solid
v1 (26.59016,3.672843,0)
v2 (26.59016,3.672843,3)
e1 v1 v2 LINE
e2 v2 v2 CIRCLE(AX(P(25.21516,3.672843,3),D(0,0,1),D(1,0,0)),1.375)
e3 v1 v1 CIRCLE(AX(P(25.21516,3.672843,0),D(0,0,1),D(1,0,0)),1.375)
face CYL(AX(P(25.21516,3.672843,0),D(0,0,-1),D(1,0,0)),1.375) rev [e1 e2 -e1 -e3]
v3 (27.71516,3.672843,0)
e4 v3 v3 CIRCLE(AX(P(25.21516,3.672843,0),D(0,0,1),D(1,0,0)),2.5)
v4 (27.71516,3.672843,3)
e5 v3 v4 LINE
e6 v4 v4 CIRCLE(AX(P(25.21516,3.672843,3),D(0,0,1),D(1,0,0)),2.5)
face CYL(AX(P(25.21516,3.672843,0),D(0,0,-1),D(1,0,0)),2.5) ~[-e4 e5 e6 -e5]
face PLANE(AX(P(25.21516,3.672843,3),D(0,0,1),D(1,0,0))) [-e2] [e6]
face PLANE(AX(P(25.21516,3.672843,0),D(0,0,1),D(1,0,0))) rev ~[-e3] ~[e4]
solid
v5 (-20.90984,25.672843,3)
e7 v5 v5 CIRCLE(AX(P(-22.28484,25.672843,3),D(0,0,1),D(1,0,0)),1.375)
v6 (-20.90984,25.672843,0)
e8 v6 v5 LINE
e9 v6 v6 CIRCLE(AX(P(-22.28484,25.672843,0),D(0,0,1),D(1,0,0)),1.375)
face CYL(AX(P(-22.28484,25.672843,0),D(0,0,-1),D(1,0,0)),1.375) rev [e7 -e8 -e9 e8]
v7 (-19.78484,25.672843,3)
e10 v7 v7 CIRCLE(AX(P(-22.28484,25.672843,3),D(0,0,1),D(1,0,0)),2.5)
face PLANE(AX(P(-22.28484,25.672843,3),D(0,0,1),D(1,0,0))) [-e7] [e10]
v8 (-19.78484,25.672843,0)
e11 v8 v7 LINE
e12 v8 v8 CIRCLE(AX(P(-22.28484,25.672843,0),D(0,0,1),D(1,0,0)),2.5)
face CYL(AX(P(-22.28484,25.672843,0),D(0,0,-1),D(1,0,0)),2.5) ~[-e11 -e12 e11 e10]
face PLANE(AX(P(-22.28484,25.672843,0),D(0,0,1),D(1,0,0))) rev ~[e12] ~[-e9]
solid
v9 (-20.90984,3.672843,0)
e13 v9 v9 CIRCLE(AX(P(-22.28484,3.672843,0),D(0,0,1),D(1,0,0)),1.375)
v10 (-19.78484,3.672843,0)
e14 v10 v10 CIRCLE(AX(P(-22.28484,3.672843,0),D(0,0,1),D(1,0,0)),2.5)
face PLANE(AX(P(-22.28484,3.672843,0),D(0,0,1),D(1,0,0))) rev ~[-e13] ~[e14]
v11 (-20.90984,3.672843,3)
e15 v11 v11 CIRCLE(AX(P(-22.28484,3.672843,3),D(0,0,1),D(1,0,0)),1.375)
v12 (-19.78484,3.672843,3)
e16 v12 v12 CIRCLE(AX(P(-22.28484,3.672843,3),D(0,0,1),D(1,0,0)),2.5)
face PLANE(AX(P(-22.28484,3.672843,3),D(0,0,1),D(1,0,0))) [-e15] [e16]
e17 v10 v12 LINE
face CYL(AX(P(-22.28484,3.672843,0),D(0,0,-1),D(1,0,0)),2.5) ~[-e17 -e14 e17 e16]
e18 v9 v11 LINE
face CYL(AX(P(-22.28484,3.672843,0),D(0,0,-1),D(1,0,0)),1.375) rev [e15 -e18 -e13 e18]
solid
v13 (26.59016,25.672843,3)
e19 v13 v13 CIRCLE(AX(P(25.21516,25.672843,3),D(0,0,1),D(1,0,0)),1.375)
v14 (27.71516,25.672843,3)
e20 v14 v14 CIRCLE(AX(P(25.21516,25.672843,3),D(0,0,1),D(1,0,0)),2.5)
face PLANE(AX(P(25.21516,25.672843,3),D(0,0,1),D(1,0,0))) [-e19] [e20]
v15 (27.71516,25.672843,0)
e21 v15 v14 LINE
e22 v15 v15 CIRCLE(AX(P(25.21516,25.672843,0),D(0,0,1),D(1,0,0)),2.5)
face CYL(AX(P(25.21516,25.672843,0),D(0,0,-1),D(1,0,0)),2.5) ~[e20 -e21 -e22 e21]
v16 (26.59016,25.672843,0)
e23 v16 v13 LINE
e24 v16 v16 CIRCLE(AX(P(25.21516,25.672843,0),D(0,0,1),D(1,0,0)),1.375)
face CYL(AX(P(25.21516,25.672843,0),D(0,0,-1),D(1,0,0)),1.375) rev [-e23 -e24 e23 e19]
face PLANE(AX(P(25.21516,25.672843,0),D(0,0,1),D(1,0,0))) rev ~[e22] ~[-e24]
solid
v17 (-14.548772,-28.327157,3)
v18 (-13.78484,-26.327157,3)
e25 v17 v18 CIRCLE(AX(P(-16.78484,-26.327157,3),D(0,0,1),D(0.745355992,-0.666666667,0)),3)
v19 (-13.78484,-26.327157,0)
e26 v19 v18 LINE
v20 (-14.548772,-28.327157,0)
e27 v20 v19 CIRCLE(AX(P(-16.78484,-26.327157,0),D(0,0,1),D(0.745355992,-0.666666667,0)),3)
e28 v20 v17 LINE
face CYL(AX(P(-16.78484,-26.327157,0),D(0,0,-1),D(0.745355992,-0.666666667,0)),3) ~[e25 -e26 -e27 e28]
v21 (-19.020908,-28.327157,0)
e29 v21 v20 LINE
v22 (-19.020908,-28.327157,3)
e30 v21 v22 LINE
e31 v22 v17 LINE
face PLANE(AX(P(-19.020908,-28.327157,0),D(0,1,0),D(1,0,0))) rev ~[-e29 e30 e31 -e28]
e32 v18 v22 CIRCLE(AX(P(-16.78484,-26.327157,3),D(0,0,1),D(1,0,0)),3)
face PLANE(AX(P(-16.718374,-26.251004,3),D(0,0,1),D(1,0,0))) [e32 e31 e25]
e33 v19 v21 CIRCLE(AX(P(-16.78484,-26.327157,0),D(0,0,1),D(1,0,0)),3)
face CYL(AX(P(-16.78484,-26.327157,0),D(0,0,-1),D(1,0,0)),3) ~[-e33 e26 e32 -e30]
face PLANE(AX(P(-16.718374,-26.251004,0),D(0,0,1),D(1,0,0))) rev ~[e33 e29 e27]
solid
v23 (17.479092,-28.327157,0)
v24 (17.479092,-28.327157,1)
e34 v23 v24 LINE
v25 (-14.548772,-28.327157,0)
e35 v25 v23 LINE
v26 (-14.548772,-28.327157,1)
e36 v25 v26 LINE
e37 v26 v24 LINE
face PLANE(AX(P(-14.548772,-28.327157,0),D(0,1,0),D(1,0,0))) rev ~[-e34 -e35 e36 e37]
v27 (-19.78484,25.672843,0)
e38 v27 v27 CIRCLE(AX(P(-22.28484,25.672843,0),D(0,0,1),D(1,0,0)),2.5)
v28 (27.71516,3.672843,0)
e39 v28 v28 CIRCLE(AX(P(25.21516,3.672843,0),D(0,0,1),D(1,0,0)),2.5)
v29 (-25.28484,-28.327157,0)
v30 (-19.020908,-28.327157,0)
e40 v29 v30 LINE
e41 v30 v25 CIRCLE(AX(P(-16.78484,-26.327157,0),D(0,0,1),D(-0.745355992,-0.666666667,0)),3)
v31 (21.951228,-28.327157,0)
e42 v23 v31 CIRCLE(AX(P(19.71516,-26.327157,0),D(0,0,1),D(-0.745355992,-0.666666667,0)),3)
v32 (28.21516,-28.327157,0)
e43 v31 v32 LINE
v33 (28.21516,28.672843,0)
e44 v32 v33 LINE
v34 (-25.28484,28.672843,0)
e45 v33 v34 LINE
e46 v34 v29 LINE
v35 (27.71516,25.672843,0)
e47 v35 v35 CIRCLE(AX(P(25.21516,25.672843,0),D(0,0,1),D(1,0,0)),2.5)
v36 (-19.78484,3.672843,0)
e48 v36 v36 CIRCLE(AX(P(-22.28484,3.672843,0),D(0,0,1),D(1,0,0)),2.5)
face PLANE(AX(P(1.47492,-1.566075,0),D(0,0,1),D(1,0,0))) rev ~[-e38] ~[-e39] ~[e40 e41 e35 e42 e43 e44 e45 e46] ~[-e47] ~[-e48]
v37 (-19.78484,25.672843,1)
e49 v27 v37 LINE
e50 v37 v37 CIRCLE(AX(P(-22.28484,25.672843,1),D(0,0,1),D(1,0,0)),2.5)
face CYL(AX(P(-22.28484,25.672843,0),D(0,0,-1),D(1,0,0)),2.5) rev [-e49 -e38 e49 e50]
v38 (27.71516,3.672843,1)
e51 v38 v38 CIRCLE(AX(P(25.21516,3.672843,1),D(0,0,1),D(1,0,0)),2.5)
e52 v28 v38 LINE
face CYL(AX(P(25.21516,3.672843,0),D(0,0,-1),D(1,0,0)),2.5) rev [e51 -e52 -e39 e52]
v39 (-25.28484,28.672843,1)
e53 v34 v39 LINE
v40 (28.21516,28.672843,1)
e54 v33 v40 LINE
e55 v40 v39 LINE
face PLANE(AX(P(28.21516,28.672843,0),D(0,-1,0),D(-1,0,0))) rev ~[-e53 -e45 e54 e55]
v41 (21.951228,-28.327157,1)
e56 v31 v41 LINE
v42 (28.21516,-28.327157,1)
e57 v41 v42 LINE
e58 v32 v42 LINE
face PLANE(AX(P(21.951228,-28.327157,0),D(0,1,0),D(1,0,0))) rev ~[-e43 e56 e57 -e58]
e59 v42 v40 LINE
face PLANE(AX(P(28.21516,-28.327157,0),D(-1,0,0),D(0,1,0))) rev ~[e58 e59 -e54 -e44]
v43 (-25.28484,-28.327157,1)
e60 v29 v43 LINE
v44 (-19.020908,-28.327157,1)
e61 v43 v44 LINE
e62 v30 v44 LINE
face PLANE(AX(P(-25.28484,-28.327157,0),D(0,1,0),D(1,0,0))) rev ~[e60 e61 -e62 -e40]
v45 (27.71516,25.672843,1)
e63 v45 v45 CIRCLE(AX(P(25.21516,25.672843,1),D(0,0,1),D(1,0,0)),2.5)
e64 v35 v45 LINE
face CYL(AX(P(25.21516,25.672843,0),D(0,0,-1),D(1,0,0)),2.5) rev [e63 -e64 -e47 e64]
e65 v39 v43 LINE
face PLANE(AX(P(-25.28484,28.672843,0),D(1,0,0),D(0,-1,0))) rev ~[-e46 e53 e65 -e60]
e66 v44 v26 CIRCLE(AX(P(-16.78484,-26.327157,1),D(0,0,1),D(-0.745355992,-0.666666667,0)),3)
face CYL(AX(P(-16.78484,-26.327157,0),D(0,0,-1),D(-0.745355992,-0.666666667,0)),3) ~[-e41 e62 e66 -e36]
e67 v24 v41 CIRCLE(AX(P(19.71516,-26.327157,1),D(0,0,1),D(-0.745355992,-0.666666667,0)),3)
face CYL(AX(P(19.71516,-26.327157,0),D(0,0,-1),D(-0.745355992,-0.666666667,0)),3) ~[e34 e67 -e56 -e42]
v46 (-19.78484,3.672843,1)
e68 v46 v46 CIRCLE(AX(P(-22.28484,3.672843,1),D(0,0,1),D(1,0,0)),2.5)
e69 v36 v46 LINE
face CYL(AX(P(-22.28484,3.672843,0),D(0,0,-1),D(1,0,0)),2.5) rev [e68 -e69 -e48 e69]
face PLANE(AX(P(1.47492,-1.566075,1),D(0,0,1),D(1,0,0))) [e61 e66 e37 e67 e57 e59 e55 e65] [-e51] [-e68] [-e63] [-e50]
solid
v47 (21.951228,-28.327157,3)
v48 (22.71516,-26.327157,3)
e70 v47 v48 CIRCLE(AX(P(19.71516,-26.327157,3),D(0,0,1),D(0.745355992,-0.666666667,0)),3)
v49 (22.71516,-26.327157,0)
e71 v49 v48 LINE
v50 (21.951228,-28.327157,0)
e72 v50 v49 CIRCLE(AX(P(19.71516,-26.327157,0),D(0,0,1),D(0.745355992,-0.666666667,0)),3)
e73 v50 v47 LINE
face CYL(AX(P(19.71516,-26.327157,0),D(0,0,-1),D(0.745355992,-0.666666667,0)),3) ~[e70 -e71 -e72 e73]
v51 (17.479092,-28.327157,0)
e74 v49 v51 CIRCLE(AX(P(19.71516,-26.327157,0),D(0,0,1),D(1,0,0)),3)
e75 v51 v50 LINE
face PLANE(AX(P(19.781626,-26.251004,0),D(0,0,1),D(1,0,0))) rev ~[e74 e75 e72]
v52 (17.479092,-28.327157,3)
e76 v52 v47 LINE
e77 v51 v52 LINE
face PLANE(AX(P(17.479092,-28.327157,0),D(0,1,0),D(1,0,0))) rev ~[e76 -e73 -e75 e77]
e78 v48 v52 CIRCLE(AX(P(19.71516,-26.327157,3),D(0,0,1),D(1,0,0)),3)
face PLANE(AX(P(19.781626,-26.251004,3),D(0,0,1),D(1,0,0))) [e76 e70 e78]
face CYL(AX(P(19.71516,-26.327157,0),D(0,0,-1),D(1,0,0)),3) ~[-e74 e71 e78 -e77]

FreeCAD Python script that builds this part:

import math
import FreeCAD as App
import Part
import Sketcher
from FreeCAD import Vector

doc = App.newDocument("Part")
body = doc.addObject("PartDesign::Body", "Body")

# Sketch on XY plane
sketch1 = doc.addObject("Sketcher::SketchObject", "Sketch")
body.addObject(sketch1)
sketch1.AttachmentSupport = (doc.XY_Plane, [""])
sketch1.MapMode = "FlatFace"
sketch1.addGeometry([
    Part.Circle(Vector(-22.28484, 25.672843, 0), Vector(0, 0, 1), 2.5),
    Part.Circle(Vector(-22.28484, 25.672843, 0), Vector(0, 0, 1), 1.375),
], False)
sketch1.addConstraint([
    Sketcher.Constraint("Coincident", 1, 3, 0, 3),
    Sketcher.Constraint("Diameter", 0, 5.0),
    Sketcher.Constraint("Diameter", 1, 2.75),
    Sketcher.Constraint("DistanceX", 0, 3, -1, 1, 22.28484),
    Sketcher.Constraint("DistanceY", -1, 1, 0, 3, 25.672843),
])
pad1 = doc.addObject("PartDesign::Pad", "Pad")
body.addObject(pad1)
pad1.Profile = sketch1
pad1.Length = 3
body2 = doc.addObject("PartDesign::Body", "Body001")

# Sketch on XY plane
sketch2 = doc.addObject("Sketcher::SketchObject", "Sketch001")
body2.addObject(sketch2)
sketch2.AttachmentSupport = (doc.getObject("XY_Plane001"), [""])
sketch2.MapMode = "FlatFace"
sketch2.addGeometry([
    Part.Circle(Vector(-22.28484, 3.672843, 0), Vector(0, 0, 1), 2.5),
    Part.Circle(Vector(-22.28484, 3.672843, 0), Vector(0, 0, 1), 1.375),
], False)
sketch2.addConstraint([
    Sketcher.Constraint("Coincident", 1, 3, 0, 3),
    Sketcher.Constraint("Diameter", 0, 5.0),
    Sketcher.Constraint("Diameter", 1, 2.75),
    Sketcher.Constraint("DistanceX", 0, 3, -1, 1, 22.28484),
    Sketcher.Constraint("DistanceY", -1, 1, 0, 3, 3.672843),
])
pad2 = doc.addObject("PartDesign::Pad", "Pad001")
body2.addObject(pad2)
pad2.Profile = sketch2
pad2.Length = 3
body3 = doc.addObject("PartDesign::Body", "Body002")

# Sketch on XY plane
sketch3 = doc.addObject("Sketcher::SketchObject", "Sketch002")
body3.addObject(sketch3)
sketch3.AttachmentSupport = (doc.getObject("XY_Plane002"), [""])
sketch3.MapMode = "FlatFace"
sketch3.addGeometry([
    Part.Circle(Vector(25.21516, 3.672843, 0), Vector(0, 0, 1), 2.5),
    Part.Circle(Vector(25.21516, 3.672843, 0), Vector(0, 0, 1), 1.375),
], False)
sketch3.addConstraint([
    Sketcher.Constraint("Coincident", 1, 3, 0, 3),
    Sketcher.Constraint("Diameter", 0, 5.0),
    Sketcher.Constraint("Diameter", 1, 2.75),
    Sketcher.Constraint("DistanceX", -1, 1, 0, 3, 25.21516),
    Sketcher.Constraint("DistanceY", -1, 1, 0, 3, 3.672843),
])
pad3 = doc.addObject("PartDesign::Pad", "Pad002")
body3.addObject(pad3)
pad3.Profile = sketch3
pad3.Length = 3
body4 = doc.addObject("PartDesign::Body", "Body003")

# Sketch on XY plane
sketch4 = doc.addObject("Sketcher::SketchObject", "Sketch003")
body4.addObject(sketch4)
sketch4.AttachmentSupport = (doc.getObject("XY_Plane003"), [""])
sketch4.MapMode = "FlatFace"
sketch4.addGeometry([
    Part.Circle(Vector(25.21516, 25.672843, 0), Vector(0, 0, 1), 2.5),
    Part.Circle(Vector(25.21516, 25.672843, 0), Vector(0, 0, 1), 1.375),
], False)
sketch4.addConstraint([
    Sketcher.Constraint("Coincident", 1, 3, 0, 3),
    Sketcher.Constraint("Diameter", 0, 5.0),
    Sketcher.Constraint("Diameter", 1, 2.75),
    Sketcher.Constraint("DistanceX", -1, 1, 0, 3, 25.21516),
    Sketcher.Constraint("DistanceY", -1, 1, 0, 3, 25.672843),
])
pad4 = doc.addObject("PartDesign::Pad", "Pad003")
body4.addObject(pad4)
pad4.Profile = sketch4
pad4.Length = 3
body5 = doc.addObject("PartDesign::Body", "Body004")

# Sketch on XY plane
sketch5 = doc.addObject("Sketcher::SketchObject", "Sketch004")
body5.addObject(sketch5)
sketch5.AttachmentSupport = (doc.getObject("XY_Plane004"), [""])
sketch5.MapMode = "FlatFace"
sketch5.addGeometry([
    Part.ArcOfCircle(Part.Circle(Vector(-16.78484, -26.327157, 0), Vector(0, 0, 1), 3), math.radians(0), math.radians(221.810315)),
    Part.LineSegment(Vector(-19.020908, -28.327157, 0), Vector(-14.548772, -28.327157, 0)),
    Part.ArcOfCircle(Part.Circle(Vector(-16.78484, -26.327157, 0), Vector(0, 0, 1), 3), math.radians(-41.810315), math.radians(0)),
], False)
sketch5.addConstraint([
    Sketcher.Constraint("Coincident", 0, 2, 1, 1),
    Sketcher.Constraint("Coincident", 1, 2, 2, 1),
    Sketcher.Constraint("Tangent", 2, 2, 0, 1),
    Sketcher.Constraint("Horizontal", 1),
    Sketcher.Constraint("Equal", 0, 2),
    Sketcher.Constraint("Horizontal", 0, 3, 2, 2),
    Sketcher.Constraint("Radius", 0, 3.0),
    Sketcher.Constraint("DistanceY", 0, 2, 0, 3, 2.0),
    Sketcher.Constraint("DistanceX", 0, 3, -1, 1, 16.78484),
    Sketcher.Constraint("DistanceY", 0, 3, -1, 1, 26.327157),
])
pad5 = doc.addObject("PartDesign::Pad", "Pad004")
body5.addObject(pad5)
pad5.Profile = sketch5
pad5.Length = 3
body6 = doc.addObject("PartDesign::Body", "Body005")

# Sketch on XY plane
sketch6 = doc.addObject("Sketcher::SketchObject", "Sketch005")
body6.addObject(sketch6)
sketch6.AttachmentSupport = (doc.getObject("XY_Plane005"), [""])
sketch6.MapMode = "FlatFace"
sketch6.addGeometry([
    Part.LineSegment(Vector(17.479092, -28.327157, 0), Vector(21.951228, -28.327157, 0)),
    Part.ArcOfCircle(Part.Circle(Vector(19.71516, -26.327157, 0), Vector(0, 0, 1), 3), math.radians(-41.810315), math.radians(0)),
    Part.ArcOfCircle(Part.Circle(Vector(19.71516, -26.327157, 0), Vector(0, 0, 1), 3), math.radians(0), math.radians(221.810315)),
], False)
sketch6.addConstraint([
    Sketcher.Constraint("Coincident", 0, 2, 1, 1),
    Sketcher.Constraint("Tangent", 1, 2, 2, 1),
    Sketcher.Constraint("Coincident", 2, 2, 0, 1),
    Sketcher.Constraint("Horizontal", 0),
    Sketcher.Constraint("Equal", 1, 2),
    Sketcher.Constraint("Horizontal", 2, 3, 1, 2),
    Sketcher.Constraint("Radius", 1, 3.0),
    Sketcher.Constraint("DistanceY", 0, 2, 1, 3, 2.0),
    Sketcher.Constraint("DistanceX", -1, 1, 1, 3, 19.71516),
    Sketcher.Constraint("DistanceY", 1, 3, -1, 1, 26.327157),
])
pad6 = doc.addObject("PartDesign::Pad", "Pad005")
body6.addObject(pad6)
pad6.Profile = sketch6
pad6.Length = 3
body7 = doc.addObject("PartDesign::Body", "Body006")

# Sketch on XY plane
sketch7 = doc.addObject("Sketcher::SketchObject", "Sketch006")
body7.addObject(sketch7)
sketch7.AttachmentSupport = (doc.getObject("XY_Plane006"), [""])
sketch7.MapMode = "FlatFace"
sketch7.addGeometry([
    Part.LineSegment(Vector(28.21516, 28.672843, 0), Vector(-25.28484, 28.672843, 0)),  # 0
    Part.LineSegment(Vector(-25.28484, 28.672843, 0), Vector(-25.28484, -28.327157, 0)),  # 1
    Part.LineSegment(Vector(-25.28484, -28.327157, 0), Vector(-19.020908, -28.327157, 0)),  # 2
    Part.ArcOfCircle(Part.Circle(Vector(-16.78484, -26.327157, 0), Vector(0, 0, 1), 3), math.radians(-138.189685), math.radians(-41.810315)),  # 3
    Part.LineSegment(Vector(-14.548772, -28.327157, 0), Vector(17.479092, -28.327157, 0)),  # 4
    Part.ArcOfCircle(Part.Circle(Vector(19.71516, -26.327157, 0), Vector(0, 0, 1), 3), math.radians(-138.189685), math.radians(-41.810315)),  # 5
    Part.LineSegment(Vector(21.951228, -28.327157, 0), Vector(28.21516, -28.327157, 0)),  # 6
    Part.LineSegment(Vector(28.21516, -28.327157, 0), Vector(28.21516, 28.672843, 0)),  # 7
    Part.Circle(Vector(-22.28484, 3.672843, 0), Vector(0, 0, 1), 2.5),  # 8
    Part.Circle(Vector(25.21516, 3.672843, 0), Vector(0, 0, 1), 2.5),  # 9
    Part.Circle(Vector(-22.28484, 25.672843, 0), Vector(0, 0, 1), 2.5),  # 10
    Part.Circle(Vector(25.21516, 25.672843, 0), Vector(0, 0, 1), 2.5),  # 11
], False)
sketch7.addConstraint([
    Sketcher.Constraint("Coincident", 0, 2, 1, 1),
    Sketcher.Constraint("Coincident", 1, 2, 2, 1),
    Sketcher.Constraint("Coincident", 2, 2, 3, 1),
    Sketcher.Constraint("Coincident", 3, 2, 4, 1),
    Sketcher.Constraint("Coincident", 4, 2, 5, 1),
    Sketcher.Constraint("Coincident", 5, 2, 6, 1),
    Sketcher.Constraint("Coincident", 6, 2, 7, 1),
    Sketcher.Constraint("Coincident", 7, 2, 0, 1),
    Sketcher.Constraint("Horizontal", 0),
    Sketcher.Constraint("Vertical", 1),
    Sketcher.Constraint("Horizontal", 2),
    Sketcher.Constraint("Horizontal", 4),
    Sketcher.Constraint("Horizontal", 6),
    Sketcher.Constraint("Vertical", 7),
    Sketcher.Constraint("Equal", 3, 5),
    Sketcher.Constraint("Equal", 8, 9),
    Sketcher.Constraint("Equal", 9, 10),
    Sketcher.Constraint("Equal", 10, 11),
    Sketcher.Constraint("Horizontal", 3, 3, 5, 3),
    Sketcher.Constraint("Horizontal", 8, 3, 9, 3),
    Sketcher.Constraint("Horizontal", 10, 3, 11, 3),
    Sketcher.Constraint("Horizontal", 2, 2, 3, 2),
    Sketcher.Constraint("Horizontal", 4, 2, 5, 2),
    Sketcher.Constraint("Vertical", 8, 3, 10, 3),
    Sketcher.Constraint("Vertical", 9, 3, 11, 3),
    Sketcher.Constraint("Equal", 2, 6),
    Sketcher.Constraint("Diameter", 8, 5.0),
    Sketcher.Constraint("Radius", 3, 3.0),
    Sketcher.Constraint("DistanceY", 1, 2, 1, 1, 57.0),
    Sketcher.Constraint("DistanceX", 0, 2, 0, 1, 53.5),
    Sketcher.Constraint("DistanceY", 3, 3, 8, 3, 30.0),
    Sketcher.Constraint("DistanceX", 8, 3, 5, 3, 42.0),
    Sketcher.Constraint("DistanceX", 3, 3, 9, 3, 42.0),
    Sketcher.Constraint("DistanceY", 8, 3, 10, 3, 22.0),
    Sketcher.Constraint("DistanceX", 0, 2, 10, 3, 3.0),
    Sketcher.Constraint("DistanceY", 10, 3, 0, 2, 3.0),
    Sketcher.Constraint("DistanceX", 3, 3, -1, 1, 16.78484),
    Sketcher.Constraint("DistanceY", 3, 3, -1, 1, 26.327157),
])
pad7 = doc.addObject("PartDesign::Pad", "Pad006")
body7.addObject(pad7)
pad7.Profile = sketch7
pad7.Length = 1

doc.recompute()
